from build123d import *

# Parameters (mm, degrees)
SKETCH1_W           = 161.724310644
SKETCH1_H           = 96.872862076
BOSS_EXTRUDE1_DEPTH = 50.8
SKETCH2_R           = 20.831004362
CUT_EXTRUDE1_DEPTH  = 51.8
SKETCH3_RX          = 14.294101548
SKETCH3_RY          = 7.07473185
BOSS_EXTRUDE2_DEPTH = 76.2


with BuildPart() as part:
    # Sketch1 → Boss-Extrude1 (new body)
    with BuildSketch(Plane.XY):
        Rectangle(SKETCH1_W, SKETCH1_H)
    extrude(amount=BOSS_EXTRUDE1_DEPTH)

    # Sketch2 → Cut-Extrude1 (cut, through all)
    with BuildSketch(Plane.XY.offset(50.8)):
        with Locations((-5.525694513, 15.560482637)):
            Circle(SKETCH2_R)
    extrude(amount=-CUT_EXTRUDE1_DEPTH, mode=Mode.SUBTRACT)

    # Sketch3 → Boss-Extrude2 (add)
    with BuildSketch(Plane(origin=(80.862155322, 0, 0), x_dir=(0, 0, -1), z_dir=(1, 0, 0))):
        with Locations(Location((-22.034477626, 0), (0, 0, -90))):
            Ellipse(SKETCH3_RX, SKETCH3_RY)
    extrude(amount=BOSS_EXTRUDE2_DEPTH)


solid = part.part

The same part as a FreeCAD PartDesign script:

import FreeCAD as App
import Part
import Sketcher
from FreeCAD import Vector
Q = App.Units.Quantity


def add_polygon(sketch, points):
    """Adds a closed chain of lines whose ends are joined by coincident constraints."""
    first, n = sketch.GeometryCount, len(points)
    for a, b in zip(points, points[1:] + points[:1]):
        sketch.addGeometry(Part.LineSegment(App.Vector(*a, 0), App.Vector(*b, 0)), False)
    for i in range(n):
        sketch.addConstraint(Sketcher.Constraint("Coincident", first + i, 2, first + (i + 1) % n, 1))

doc = App.newDocument("Part")
body = doc.addObject("PartDesign::Body", "Body")

sketch1 = body.newObject("Sketcher::SketchObject", "Sketch")
sketch1.AttachmentSupport = (doc.getObject("XY_Plane"), [""])
sketch1.MapMode = "FlatFace"
add_polygon(sketch1, [(-81, 48), (-81, -48), (81, -48), (81, 48)])
sketch1.addConstraint([
    Sketcher.Constraint("Vertical", 0),
    Sketcher.Constraint("Horizontal", 1),
    Sketcher.Constraint("Vertical", 2),
    Sketcher.Constraint("Horizontal", 3),
    Sketcher.Constraint("Symmetric", 0, 2, 2, 2, -1, 1),
    Sketcher.Constraint("DistanceX", 1, 1, 1, 2, 161.724311),
    Sketcher.Constraint("DistanceY", 0, 2, 0, 1, 96.872862),
])
pad1 = body.newObject("PartDesign::Pad", "Pad")
pad1.Profile = sketch1
pad1.Length = Q("2 in")

sketch2 = body.newObject("Sketcher::SketchObject", "Sketch001")
sketch2.AttachmentSupport = (doc.getObject("XY_Plane"), [""])
sketch2.MapMode = "FlatFace"
sketch2.AttachmentOffset = App.Placement(Vector(0, 0, 2 * 25.4), App.Rotation())
sketch2.addGeometry(Part.Circle(Vector(-6, 16, 0), Vector(0, 0, 1), 21), False)
sketch2.addConstraint([
    Sketcher.Constraint("Diameter", 0, 41.662009),
    Sketcher.Constraint("DistanceX", 0, 3, -1, 1, 5.525695),
    Sketcher.Constraint("DistanceY", -1, 1, 0, 3, 15.560483),
])
pocket1 = body.newObject("PartDesign::Pocket", "Pocket")
pocket1.Profile = sketch2
pocket1.Type = "ThroughAll"

sketch3 = body.newObject("Sketcher::SketchObject", "Sketch002")
sketch3.AttachmentSupport = (doc.getObject("YZ_Plane"), [""])
sketch3.MapMode = "FlatFace"
sketch3.AttachmentOffset = App.Placement(Vector(0, 0, 80.862155), App.Rotation())
sketch3.addGeometry(Part.Ellipse(Vector(-14.294102, 22.034478, 0), Vector(0, 14.959746, 0), Vector(0, 22.034478, 0)), False)
sketch3.addConstraint(Sketcher.Constraint("Block", 0))
pad2 = body.newObject("PartDesign::Pad", "Pad001")
pad2.Profile = sketch3
pad2.Length = Q("3 in")

doc.recompute()
